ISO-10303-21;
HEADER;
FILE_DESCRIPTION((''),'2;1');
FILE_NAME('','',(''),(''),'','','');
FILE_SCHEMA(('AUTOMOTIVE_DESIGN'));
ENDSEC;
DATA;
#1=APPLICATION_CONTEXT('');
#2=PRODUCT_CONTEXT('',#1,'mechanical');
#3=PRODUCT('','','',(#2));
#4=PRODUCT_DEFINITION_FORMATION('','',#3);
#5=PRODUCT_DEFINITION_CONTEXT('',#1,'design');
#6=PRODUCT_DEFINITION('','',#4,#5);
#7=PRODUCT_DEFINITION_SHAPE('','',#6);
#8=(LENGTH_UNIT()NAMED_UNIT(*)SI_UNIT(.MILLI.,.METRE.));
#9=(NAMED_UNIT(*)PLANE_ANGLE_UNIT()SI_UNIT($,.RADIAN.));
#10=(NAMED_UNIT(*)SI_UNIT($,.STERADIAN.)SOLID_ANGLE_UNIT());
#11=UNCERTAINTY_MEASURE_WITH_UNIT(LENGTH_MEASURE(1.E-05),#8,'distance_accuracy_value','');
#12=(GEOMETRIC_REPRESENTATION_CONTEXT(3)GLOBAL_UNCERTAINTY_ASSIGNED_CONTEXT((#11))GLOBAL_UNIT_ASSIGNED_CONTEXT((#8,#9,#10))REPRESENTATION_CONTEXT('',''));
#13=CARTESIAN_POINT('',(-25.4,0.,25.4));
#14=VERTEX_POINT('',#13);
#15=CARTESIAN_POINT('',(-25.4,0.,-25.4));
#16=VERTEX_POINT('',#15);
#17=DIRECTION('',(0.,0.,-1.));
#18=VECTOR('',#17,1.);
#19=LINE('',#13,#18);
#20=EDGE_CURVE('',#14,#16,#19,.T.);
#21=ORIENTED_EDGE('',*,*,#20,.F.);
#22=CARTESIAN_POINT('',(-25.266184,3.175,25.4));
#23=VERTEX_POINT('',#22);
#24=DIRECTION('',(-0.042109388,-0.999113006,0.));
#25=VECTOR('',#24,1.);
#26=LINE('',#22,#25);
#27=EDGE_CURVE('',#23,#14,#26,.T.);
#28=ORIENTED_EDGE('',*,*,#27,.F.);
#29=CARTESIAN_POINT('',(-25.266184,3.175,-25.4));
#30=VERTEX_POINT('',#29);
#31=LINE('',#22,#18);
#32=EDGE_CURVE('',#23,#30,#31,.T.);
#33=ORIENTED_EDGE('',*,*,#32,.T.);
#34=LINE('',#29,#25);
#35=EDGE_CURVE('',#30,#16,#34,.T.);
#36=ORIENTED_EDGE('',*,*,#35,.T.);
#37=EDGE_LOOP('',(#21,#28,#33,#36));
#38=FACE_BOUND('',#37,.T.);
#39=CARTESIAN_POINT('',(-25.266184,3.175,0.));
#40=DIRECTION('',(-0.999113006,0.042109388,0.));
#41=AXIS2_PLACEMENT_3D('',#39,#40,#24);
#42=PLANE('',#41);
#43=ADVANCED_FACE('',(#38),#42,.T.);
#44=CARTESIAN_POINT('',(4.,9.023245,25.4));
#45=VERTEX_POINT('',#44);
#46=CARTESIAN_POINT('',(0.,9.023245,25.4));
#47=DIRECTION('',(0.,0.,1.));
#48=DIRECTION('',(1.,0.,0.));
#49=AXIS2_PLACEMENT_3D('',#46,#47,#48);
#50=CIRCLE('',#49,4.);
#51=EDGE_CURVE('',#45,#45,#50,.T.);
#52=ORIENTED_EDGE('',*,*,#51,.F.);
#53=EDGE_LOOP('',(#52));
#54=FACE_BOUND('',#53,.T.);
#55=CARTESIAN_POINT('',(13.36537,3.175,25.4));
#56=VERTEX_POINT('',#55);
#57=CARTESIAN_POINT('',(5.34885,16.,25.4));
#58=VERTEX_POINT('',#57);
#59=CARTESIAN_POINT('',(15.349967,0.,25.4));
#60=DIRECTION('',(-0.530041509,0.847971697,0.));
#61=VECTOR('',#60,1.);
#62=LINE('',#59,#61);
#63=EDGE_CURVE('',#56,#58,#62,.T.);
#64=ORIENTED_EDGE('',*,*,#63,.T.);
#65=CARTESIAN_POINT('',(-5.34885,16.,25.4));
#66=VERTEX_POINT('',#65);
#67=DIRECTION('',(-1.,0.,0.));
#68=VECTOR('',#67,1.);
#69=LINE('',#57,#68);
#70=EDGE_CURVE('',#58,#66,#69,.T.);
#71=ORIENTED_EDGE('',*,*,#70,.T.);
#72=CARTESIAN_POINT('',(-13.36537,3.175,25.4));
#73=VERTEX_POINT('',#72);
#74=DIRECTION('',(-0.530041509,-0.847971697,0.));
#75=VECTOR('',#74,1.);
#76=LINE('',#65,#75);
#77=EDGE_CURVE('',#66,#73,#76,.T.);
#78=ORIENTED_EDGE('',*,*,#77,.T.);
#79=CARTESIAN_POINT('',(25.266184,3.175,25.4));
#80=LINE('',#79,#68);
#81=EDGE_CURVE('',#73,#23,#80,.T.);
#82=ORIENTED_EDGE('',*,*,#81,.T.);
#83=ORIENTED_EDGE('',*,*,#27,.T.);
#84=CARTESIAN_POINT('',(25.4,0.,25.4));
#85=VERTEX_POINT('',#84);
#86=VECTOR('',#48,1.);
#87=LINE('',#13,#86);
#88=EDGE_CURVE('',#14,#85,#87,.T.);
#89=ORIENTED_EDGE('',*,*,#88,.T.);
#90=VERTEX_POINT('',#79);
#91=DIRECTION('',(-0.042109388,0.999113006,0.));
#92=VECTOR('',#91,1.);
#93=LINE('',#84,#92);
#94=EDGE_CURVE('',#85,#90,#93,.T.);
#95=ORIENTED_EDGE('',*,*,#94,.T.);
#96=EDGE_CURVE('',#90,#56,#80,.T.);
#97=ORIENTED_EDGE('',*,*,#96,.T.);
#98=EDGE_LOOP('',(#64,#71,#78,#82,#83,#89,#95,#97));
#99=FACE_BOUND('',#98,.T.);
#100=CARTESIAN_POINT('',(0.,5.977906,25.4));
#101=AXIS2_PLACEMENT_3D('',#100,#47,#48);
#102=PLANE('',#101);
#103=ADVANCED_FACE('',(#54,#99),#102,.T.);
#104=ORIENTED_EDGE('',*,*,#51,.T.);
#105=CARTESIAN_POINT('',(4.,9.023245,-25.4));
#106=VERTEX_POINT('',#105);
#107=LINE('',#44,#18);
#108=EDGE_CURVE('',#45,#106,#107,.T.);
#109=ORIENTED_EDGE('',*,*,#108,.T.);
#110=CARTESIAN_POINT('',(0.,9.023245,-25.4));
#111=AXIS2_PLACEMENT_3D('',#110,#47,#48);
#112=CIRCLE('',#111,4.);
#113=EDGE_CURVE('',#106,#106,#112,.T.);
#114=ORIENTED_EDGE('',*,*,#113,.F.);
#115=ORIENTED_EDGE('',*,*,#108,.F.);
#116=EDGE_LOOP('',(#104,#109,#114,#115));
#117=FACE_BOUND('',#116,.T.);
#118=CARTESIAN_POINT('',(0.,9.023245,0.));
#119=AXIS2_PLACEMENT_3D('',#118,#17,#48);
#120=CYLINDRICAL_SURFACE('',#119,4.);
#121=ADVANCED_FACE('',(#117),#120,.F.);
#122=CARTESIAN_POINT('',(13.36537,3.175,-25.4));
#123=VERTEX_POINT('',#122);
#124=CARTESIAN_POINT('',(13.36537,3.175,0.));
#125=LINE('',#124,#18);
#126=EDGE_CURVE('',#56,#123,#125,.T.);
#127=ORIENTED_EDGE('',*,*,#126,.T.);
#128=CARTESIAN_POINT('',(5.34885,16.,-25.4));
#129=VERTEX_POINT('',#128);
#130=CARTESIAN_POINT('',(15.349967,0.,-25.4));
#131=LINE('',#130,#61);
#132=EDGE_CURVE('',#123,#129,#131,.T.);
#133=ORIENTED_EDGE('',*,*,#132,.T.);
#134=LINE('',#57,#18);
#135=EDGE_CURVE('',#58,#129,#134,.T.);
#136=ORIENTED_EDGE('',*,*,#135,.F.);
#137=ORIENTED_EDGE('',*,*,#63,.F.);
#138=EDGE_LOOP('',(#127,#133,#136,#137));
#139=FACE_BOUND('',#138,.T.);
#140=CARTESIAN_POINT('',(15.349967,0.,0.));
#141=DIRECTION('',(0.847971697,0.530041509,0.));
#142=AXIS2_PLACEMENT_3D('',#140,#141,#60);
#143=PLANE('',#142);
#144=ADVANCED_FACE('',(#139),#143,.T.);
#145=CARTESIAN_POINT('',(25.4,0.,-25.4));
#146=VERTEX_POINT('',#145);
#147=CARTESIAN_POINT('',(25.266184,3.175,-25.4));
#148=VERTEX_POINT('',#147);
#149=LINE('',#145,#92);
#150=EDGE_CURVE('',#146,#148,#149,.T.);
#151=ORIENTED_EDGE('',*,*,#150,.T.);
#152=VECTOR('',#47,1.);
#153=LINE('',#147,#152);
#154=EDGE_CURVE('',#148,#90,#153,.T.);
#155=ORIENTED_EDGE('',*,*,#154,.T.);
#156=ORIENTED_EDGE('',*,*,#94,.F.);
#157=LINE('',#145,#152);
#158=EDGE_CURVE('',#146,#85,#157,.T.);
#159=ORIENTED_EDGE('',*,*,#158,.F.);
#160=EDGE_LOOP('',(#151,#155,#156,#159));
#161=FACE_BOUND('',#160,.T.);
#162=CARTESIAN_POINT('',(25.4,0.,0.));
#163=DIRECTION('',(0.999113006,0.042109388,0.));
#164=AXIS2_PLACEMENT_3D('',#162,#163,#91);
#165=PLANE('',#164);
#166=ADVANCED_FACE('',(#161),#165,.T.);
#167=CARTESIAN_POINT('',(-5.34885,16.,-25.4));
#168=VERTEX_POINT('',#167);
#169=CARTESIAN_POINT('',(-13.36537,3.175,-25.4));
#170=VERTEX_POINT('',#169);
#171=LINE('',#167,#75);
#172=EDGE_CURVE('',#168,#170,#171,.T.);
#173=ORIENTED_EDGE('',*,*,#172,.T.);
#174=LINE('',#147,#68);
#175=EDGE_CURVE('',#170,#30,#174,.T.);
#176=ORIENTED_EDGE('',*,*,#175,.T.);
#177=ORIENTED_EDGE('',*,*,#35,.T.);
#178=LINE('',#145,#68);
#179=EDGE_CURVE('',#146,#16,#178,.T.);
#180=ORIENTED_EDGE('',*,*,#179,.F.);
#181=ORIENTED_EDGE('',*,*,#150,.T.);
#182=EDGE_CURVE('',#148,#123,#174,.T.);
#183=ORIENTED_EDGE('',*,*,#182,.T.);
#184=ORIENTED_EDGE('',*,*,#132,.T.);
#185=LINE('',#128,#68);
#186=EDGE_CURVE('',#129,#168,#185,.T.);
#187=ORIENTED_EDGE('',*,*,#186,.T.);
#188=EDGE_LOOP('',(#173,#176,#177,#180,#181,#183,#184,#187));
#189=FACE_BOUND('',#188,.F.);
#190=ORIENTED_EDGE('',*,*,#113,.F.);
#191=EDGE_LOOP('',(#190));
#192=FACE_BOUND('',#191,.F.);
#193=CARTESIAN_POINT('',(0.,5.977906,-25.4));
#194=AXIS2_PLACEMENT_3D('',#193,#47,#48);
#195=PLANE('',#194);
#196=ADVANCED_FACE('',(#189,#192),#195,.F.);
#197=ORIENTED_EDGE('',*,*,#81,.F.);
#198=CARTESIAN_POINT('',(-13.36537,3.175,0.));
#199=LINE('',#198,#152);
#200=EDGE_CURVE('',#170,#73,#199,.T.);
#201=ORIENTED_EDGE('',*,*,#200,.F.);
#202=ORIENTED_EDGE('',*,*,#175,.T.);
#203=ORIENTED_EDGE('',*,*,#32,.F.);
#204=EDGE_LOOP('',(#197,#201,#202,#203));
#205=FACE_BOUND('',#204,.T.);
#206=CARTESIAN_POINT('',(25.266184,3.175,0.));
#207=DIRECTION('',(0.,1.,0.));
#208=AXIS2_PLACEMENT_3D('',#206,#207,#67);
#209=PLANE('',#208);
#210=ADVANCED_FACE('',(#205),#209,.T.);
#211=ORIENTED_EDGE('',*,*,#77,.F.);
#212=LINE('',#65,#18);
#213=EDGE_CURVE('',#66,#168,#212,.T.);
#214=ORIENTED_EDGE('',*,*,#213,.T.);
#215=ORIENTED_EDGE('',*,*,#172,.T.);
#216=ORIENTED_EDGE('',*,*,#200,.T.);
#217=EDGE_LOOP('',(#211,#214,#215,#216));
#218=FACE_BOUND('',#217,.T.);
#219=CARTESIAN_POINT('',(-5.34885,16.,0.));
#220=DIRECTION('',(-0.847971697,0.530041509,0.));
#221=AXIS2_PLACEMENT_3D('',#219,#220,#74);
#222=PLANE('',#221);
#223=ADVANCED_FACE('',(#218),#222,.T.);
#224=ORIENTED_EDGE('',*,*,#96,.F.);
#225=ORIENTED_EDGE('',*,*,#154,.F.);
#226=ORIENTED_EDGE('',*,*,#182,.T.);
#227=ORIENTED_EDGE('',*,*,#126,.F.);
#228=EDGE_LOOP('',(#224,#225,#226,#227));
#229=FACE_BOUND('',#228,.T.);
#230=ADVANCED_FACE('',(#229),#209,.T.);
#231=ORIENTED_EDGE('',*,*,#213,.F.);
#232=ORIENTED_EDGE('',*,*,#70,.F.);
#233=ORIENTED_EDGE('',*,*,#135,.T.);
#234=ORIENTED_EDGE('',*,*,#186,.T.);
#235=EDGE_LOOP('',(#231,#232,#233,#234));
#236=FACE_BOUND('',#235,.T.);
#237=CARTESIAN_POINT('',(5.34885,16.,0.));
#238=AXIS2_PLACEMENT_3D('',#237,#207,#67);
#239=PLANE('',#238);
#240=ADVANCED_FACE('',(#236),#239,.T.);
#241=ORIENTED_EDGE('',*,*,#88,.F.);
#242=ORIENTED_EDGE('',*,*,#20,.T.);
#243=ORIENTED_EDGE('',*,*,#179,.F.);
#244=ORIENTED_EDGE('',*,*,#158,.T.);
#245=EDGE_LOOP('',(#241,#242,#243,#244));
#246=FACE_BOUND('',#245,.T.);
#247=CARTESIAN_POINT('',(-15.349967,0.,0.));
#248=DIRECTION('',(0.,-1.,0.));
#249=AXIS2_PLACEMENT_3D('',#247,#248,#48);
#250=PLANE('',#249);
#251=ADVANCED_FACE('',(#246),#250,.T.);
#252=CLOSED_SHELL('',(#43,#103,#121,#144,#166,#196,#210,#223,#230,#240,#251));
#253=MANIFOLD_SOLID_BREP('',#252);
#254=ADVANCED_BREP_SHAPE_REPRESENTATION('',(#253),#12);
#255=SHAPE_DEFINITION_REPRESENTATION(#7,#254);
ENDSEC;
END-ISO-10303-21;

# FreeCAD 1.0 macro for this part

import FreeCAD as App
import Part
import Sketcher

V = App.Vector
Q = App.Units.Quantity


def add_polygon(sketch, points):
    """Adds a closed chain of lines whose ends are joined by coincident constraints."""
    first, n = sketch.GeometryCount, len(points)
    for a, b in zip(points, points[1:] + points[:1]):
        sketch.addGeometry(Part.LineSegment(App.Vector(*a, 0), App.Vector(*b, 0)), False)
    for i in range(n):
        sketch.addConstraint(Sketcher.Constraint("Coincident", first + i, 2, first + (i + 1) % n, 1))

doc = App.newDocument("Part")
params = doc.addObject("Spreadsheet::Sheet", "Params")
for row, (alias, value) in enumerate([
    ("sketch1_width", "2 in"),
    ("pad1_length", "2 in"),
    ("pad2_length", "2 in"),
], start=1):
    params.set(f"A{row}", alias)
    params.set(f"B{row}", "=" + value)
    params.setAlias(f"B{row}", alias)

body = doc.addObject("PartDesign::Body", "Body")

# Sketch on XY plane
sketch1 = body.newObject("Sketcher::SketchObject", "Sketch")
sketch1.AttachmentSupport = (doc.getObject("XY_Plane"), [""])
sketch1.MapMode = "FlatFace"
add_polygon(sketch1, [(-25.4, 0), (25.4, 0), (25.3, 3.2), (-25.3, 3.2)])  # lines 0-3
sketch1.addConstraint([
    Sketcher.Constraint("Horizontal", 0),
    Sketcher.Constraint("Horizontal", 2),
    Sketcher.Constraint("Symmetric", 0, 2, 3, 2, -1, 1),
    Sketcher.Constraint("Equal", 1, 3),
    Sketcher.Constraint("DistanceX", 0, 1, 0, 2, Q("2 in")),
    Sketcher.Constraint("DistanceY", -1, 1, 1, 2, Q("0.125 in")),
    Sketcher.Constraint("Distance", 1, 3.177819),
])
sketch1.setExpression("Constraints[8]", "Params.sketch1_width")
pad1 = body.newObject("PartDesign::Pad", "Pad")
pad1.Profile = sketch1
pad1.setExpression("Length", "Params.pad1_length")
pad1.Midplane = True

# Sketch on XY plane
sketch2 = body.newObject("Sketcher::SketchObject", "Sketch001")
sketch2.AttachmentSupport = (doc.getObject("XY_Plane"), [""])
sketch2.MapMode = "FlatFace"
add_polygon(sketch2, [(-5.3, 16), (-15.3, 0), (15.3, 0), (5.3, 16)])  # lines 0-3
sketch2.addGeometry(Part.Circle(V(0, 9, 0), V(0, 0, 1), 4), False)  # 4
sketch2.addConstraint([
    Sketcher.Constraint("Horizontal", 1),
    Sketcher.Constraint("Horizontal", 3),
    Sketcher.Constraint("Symmetric", 0, 2, 1, 2, -1, 1),
    Sketcher.Constraint("PointOnObject", 4, 3, -2),
    Sketcher.Constraint("Equal", 0, 2),
    Sketcher.Constraint("Diameter", 4, 8.0),
    Sketcher.Constraint("DistanceX", 3, 2, 3, 1, 10.6977),
    Sketcher.Constraint("DistanceY", -1, 1, 2, 2, 16.0),
    Sketcher.Constraint("DistanceX", 1, 1, 1, 2, 30.699934),
    Sketcher.Constraint("DistanceY", -1, 1, 4, 3, 9.023245),
])
pad2 = body.newObject("PartDesign::Pad", "Pad001")
pad2.Profile = sketch2
pad2.setExpression("Length", "Params.pad2_length")
pad2.Midplane = True

doc.recompute()
